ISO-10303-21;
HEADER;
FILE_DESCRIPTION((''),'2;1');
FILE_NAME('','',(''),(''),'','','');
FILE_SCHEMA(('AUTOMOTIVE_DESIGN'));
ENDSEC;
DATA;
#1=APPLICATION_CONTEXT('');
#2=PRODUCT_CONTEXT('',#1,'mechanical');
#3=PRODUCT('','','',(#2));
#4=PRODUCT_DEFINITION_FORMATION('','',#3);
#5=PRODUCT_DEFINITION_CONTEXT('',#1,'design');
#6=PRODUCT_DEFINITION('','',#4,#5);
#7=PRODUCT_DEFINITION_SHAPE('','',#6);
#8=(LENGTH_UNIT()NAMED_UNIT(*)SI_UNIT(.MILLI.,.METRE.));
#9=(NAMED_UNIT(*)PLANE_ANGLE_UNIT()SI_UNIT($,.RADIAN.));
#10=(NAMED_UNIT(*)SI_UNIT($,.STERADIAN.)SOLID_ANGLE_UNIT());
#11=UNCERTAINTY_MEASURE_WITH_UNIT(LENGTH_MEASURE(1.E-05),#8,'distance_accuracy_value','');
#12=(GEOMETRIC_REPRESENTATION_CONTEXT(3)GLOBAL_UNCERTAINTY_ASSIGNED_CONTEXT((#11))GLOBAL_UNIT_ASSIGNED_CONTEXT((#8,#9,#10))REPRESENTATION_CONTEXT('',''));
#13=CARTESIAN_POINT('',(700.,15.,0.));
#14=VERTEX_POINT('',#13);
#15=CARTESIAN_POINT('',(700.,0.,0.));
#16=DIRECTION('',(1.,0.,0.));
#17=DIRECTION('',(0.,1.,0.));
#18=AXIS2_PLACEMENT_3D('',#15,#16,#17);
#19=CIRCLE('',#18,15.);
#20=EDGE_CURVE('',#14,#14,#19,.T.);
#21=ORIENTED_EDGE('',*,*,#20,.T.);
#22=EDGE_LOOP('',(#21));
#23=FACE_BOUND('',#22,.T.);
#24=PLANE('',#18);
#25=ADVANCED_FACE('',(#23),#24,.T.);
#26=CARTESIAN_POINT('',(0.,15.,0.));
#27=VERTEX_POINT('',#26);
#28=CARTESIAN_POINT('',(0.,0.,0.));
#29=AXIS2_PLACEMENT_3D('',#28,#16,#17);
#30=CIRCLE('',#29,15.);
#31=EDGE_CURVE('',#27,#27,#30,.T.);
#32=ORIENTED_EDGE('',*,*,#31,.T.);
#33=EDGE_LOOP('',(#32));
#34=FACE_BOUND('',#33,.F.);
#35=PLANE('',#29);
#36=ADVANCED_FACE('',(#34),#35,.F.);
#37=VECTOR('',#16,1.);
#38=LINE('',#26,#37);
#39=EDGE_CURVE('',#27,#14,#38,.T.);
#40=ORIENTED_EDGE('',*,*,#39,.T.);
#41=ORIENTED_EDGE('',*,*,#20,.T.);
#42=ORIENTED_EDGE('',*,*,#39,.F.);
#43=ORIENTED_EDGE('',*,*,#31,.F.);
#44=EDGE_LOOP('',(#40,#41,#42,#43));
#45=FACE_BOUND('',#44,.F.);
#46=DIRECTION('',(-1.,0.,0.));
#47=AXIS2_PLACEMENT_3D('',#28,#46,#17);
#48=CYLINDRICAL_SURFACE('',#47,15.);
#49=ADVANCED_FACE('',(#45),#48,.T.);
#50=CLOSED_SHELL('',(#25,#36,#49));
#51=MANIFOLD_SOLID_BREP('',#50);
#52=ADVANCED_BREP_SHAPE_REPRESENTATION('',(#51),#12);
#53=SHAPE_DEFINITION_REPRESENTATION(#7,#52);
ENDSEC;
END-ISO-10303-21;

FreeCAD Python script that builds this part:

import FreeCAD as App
import Part
import Sketcher
Q = App.Units.Quantity

doc = App.newDocument("Part")
body = doc.addObject("PartDesign::Body", "Body")

# Sketch on YZ plane
sketch1 = doc.addObject("Sketcher::SketchObject", "Sketch")
body.addObject(sketch1)
sketch1.AttachmentSupport = (doc.YZ_Plane, [""])
sketch1.MapMode = "FlatFace"
sketch1.addGeometry(Part.Circle(App.Vector(0, 0, 0), App.Vector(0, 0, 1), 15), False)
sketch1.addConstraint([
    Sketcher.Constraint("Coincident", 0, 3, -1, 1),
    Sketcher.Constraint("Diameter", 0, Q("30 mm")),
])
pad1 = doc.addObject("PartDesign::Pad", "Pad")
body.addObject(pad1)
pad1.Profile = sketch1
pad1.Length = 700

doc.recompute()
